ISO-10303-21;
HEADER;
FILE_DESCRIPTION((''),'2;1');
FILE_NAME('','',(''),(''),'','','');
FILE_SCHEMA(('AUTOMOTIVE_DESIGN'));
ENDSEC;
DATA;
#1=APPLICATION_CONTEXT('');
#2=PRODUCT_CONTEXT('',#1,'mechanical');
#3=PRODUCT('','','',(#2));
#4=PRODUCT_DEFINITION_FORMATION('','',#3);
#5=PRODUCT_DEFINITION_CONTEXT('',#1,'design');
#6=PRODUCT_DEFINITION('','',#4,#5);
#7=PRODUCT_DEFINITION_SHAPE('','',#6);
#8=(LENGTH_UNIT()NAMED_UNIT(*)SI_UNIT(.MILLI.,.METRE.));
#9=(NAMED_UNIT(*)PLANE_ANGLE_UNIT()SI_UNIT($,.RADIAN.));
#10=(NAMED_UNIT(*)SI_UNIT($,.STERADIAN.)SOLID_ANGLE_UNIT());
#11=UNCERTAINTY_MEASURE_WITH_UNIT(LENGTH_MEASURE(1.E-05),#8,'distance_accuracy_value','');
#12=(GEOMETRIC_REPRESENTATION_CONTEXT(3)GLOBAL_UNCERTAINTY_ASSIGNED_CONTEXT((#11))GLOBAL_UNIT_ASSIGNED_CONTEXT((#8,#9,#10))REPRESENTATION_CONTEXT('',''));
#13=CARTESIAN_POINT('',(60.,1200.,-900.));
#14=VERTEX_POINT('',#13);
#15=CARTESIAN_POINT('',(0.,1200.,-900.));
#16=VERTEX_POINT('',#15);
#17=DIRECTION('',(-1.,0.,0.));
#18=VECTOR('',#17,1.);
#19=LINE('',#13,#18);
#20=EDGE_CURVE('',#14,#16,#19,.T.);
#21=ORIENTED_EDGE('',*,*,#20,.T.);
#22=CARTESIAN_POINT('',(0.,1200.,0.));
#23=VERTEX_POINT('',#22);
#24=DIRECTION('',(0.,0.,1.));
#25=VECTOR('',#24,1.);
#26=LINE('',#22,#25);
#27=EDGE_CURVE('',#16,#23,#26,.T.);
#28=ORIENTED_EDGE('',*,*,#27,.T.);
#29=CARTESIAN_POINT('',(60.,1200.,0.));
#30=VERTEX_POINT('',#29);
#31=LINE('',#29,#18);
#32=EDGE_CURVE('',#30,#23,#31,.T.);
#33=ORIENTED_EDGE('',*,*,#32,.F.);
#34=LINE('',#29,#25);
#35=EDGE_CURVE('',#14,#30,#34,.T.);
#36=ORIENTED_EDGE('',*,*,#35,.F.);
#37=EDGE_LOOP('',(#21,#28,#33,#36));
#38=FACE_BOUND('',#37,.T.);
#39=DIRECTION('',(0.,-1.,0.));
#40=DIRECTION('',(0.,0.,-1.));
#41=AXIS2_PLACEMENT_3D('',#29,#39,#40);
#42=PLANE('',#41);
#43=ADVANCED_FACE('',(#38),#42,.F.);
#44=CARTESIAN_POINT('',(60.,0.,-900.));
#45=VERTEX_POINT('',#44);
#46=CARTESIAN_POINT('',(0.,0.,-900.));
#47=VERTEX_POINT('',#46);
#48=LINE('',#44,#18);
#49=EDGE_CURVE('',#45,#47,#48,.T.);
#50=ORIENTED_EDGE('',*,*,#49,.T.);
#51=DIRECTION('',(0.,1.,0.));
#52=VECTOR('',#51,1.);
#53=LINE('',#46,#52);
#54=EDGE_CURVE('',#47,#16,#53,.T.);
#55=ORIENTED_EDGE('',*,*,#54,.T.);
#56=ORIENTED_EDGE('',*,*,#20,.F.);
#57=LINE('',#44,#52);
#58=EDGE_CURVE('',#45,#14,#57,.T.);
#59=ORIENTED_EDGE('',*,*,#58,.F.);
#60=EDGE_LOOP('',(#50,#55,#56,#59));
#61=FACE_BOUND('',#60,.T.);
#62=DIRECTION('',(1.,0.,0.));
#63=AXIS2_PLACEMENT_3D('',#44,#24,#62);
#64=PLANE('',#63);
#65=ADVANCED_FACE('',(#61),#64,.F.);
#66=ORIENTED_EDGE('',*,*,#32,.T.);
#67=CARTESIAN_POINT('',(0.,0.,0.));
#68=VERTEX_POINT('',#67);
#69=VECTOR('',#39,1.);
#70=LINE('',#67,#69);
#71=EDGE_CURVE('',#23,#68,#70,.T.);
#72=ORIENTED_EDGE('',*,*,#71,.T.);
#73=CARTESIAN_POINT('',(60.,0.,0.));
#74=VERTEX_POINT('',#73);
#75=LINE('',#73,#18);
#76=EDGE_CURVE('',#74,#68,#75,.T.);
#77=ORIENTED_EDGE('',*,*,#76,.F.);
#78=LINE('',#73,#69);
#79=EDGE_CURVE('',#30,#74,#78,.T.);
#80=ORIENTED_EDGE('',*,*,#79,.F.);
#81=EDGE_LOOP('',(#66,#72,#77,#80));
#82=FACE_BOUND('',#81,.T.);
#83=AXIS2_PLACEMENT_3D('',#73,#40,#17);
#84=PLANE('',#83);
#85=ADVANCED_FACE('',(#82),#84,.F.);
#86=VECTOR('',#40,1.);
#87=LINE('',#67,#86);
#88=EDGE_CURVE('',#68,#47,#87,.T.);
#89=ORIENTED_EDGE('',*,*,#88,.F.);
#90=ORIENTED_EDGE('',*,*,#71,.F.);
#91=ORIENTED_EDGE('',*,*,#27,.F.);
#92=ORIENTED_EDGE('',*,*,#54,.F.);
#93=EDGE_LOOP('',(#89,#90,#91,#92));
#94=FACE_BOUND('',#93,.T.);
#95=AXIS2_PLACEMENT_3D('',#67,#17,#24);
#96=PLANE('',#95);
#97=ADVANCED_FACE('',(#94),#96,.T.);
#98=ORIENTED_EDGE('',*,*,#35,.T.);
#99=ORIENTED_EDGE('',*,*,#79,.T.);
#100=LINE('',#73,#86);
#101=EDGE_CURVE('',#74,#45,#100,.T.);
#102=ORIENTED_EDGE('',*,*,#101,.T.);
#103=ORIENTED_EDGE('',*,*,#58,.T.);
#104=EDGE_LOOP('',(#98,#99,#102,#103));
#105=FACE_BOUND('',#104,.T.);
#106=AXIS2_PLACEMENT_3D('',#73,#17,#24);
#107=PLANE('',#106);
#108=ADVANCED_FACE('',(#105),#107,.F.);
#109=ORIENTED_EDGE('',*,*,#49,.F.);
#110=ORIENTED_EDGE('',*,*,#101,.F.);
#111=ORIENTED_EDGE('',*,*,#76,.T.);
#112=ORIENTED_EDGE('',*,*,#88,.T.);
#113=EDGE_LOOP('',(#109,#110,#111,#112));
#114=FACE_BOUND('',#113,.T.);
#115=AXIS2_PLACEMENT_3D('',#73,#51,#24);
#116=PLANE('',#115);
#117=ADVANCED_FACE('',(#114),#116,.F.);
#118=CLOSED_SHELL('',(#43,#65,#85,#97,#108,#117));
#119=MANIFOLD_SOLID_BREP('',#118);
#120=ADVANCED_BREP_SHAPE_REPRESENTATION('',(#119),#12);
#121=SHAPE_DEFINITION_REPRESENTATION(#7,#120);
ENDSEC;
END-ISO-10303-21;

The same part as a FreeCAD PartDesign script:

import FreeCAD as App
import Part
import Sketcher

doc = App.newDocument("Part")
params = doc.addObject("Spreadsheet::Sheet", "Params")
for row, (alias, value) in enumerate([
    ("sketch1_width", "1200 mm"),
    ("sketch1_height", "900 mm"),
    ("pad1_length", "60 mm"),
], start=1):
    params.set(f"A{row}", alias)
    params.set(f"B{row}", "=" + value)
    params.setAlias(f"B{row}", alias)

body = doc.addObject("PartDesign::Body", "Body")

# Sketch on YZ plane
sketch1 = doc.addObject("Sketcher::SketchObject", "Sketch")
body.addObject(sketch1)
sketch1.AttachmentSupport = (doc.YZ_Plane, [""])
sketch1.MapMode = "FlatFace"
sketch1.addGeometry(Part.LineSegment(App.Vector(1200, 0, 0), App.Vector(0, 0, 0)), False)
sketch1.addGeometry(Part.LineSegment(App.Vector(0, 0, 0), App.Vector(0, -900, 0)), False)
sketch1.addGeometry(Part.LineSegment(App.Vector(0, -900, 0), App.Vector(1200, -900, 0)), False)
sketch1.addGeometry(Part.LineSegment(App.Vector(1200, -900, 0), App.Vector(1200, 0, 0)), False)
sketch1.addConstraint(Sketcher.Constraint("Coincident", 0, 2, 1, 1))
sketch1.addConstraint(Sketcher.Constraint("Coincident", 1, 2, 2, 1))
sketch1.addConstraint(Sketcher.Constraint("Coincident", 2, 2, 3, 1))
sketch1.addConstraint(Sketcher.Constraint("Coincident", 3, 2, 0, 1))
sketch1.addConstraint(Sketcher.Constraint("Horizontal", 0))
sketch1.addConstraint(Sketcher.Constraint("Vertical", 1))
sketch1.addConstraint(Sketcher.Constraint("Horizontal", 2))
sketch1.addConstraint(Sketcher.Constraint("Vertical", 3))
sketch1.addConstraint(Sketcher.Constraint("Coincident", 0, 2, -1, 1))
sketch1.addConstraint(Sketcher.Constraint("DistanceX", 0, 2, 0, 1, 1200.0))
sketch1.addConstraint(Sketcher.Constraint("DistanceY", 1, 2, 1, 1, 900.0))
sketch1.setExpression("Constraints[9]", "Params.sketch1_width")
sketch1.setExpression("Constraints[10]", "Params.sketch1_height")
pad1 = doc.addObject("PartDesign::Pad", "Pad")
body.addObject(pad1)
pad1.Profile = sketch1
pad1.setExpression("Length", "Params.pad1_length")

doc.recompute()
